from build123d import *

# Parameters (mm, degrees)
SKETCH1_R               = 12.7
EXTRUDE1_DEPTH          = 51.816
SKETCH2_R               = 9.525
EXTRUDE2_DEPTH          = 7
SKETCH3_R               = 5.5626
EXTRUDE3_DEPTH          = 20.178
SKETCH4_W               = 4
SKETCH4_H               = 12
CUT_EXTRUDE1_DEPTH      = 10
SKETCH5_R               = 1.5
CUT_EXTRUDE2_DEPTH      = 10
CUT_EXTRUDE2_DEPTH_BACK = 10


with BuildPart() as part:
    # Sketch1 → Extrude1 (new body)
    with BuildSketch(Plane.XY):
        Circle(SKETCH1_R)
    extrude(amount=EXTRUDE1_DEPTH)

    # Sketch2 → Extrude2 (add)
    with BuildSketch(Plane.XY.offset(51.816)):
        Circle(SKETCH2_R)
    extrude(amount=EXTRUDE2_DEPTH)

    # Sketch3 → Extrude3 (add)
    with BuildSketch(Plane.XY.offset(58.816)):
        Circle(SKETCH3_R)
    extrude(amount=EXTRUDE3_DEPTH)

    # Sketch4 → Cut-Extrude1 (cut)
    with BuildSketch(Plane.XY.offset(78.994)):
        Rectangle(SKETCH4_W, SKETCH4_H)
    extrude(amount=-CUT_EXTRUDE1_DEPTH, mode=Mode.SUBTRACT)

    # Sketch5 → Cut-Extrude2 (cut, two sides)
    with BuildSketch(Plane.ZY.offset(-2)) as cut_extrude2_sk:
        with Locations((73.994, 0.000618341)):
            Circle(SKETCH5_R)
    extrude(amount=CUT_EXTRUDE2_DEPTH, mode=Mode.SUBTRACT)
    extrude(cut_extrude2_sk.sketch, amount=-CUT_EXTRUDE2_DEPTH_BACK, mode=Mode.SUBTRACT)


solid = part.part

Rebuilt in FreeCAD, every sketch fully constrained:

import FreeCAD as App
import Part
import Sketcher
from FreeCAD import Vector
Q = App.Units.Quantity


def add_polygon(sketch, points):
    """Adds a closed chain of lines whose ends are joined by coincident constraints."""
    first, n = sketch.GeometryCount, len(points)
    for a, b in zip(points, points[1:] + points[:1]):
        sketch.addGeometry(Part.LineSegment(App.Vector(*a, 0), App.Vector(*b, 0)), False)
    for i in range(n):
        sketch.addConstraint(Sketcher.Constraint("Coincident", first + i, 2, first + (i + 1) % n, 1))

doc = App.newDocument("Part")
body = doc.addObject("PartDesign::Body", "Body")

# Sketch on XY plane
sketch1 = body.newObject("Sketcher::SketchObject", "Sketch")
sketch1.AttachmentSupport = (doc.getObject("XY_Plane"), [""])
sketch1.MapMode = "FlatFace"
sketch1.addGeometry(Part.Circle(Vector(0, 0, 0), Vector(0, 0, 1), 13), False)
sketch1.addConstraint(Sketcher.Constraint("Coincident", 0, 3, -1, 1))
sketch1.addConstraint(Sketcher.Constraint("Diameter", 0, Q("25.4 mm")))
pad1 = body.newObject("PartDesign::Pad", "Pad")
pad1.Profile = sketch1
pad1.Length = 51.816

# Sketch on XY plane
sketch2 = body.newObject("Sketcher::SketchObject", "Sketch001")
sketch2.AttachmentSupport = (doc.getObject("XY_Plane"), [""])
sketch2.MapMode = "FlatFace"
sketch2.AttachmentOffset = App.Placement(Vector(0, 0, 51.816), App.Rotation())
sketch2.addGeometry(Part.Circle(Vector(0, 0, 0), Vector(0, 0, 1), 10), False)
sketch2.addConstraint(Sketcher.Constraint("Coincident", 0, 3, -1, 1))
sketch2.addConstraint(Sketcher.Constraint("Diameter", 0, Q("19.05 mm")))
pad2 = body.newObject("PartDesign::Pad", "Pad001")
pad2.Profile = sketch2
pad2.Length = 7

# Sketch on XY plane
sketch3 = body.newObject("Sketcher::SketchObject", "Sketch002")
sketch3.AttachmentSupport = (doc.getObject("XY_Plane"), [""])
sketch3.MapMode = "FlatFace"
sketch3.AttachmentOffset = App.Placement(Vector(0, 0, 58.816), App.Rotation())
sketch3.addGeometry(Part.Circle(Vector(0, 0, 0), Vector(0, 0, 1), 6), False)
sketch3.addConstraint(Sketcher.Constraint("Coincident", 0, 3, -1, 1))
sketch3.addConstraint(Sketcher.Constraint("Diameter", 0, Q("11.1252 mm")))
pad3 = body.newObject("PartDesign::Pad", "Pad002")
pad3.Profile = sketch3
pad3.Length = 20.178

# Sketch on XY plane
sketch4 = body.newObject("Sketcher::SketchObject", "Sketch003")
sketch4.AttachmentSupport = (doc.getObject("XY_Plane"), [""])
sketch4.MapMode = "FlatFace"
sketch4.AttachmentOffset = App.Placement(Vector(0, 0, 78.994), App.Rotation())
add_polygon(sketch4, [(-2, 6), (-2, -6), (2, -6), (2, 6)])  # lines 0-3
sketch4.addConstraint(Sketcher.Constraint("Vertical", 0))
sketch4.addConstraint(Sketcher.Constraint("Horizontal", 1))
sketch4.addConstraint(Sketcher.Constraint("Vertical", 2))
sketch4.addConstraint(Sketcher.Constraint("Horizontal", 3))
sketch4.addConstraint(Sketcher.Constraint("Symmetric", 0, 2, 2, 2, -1, 1))
sketch4.addConstraint(Sketcher.Constraint("DistanceX", 1, 1, 1, 2, Q("4 mm")))
sketch4.addConstraint(Sketcher.Constraint("DistanceY", 0, 2, 0, 1, Q("12 mm")))
pocket1 = body.newObject("PartDesign::Pocket", "Pocket")
pocket1.Profile = sketch4
pocket1.Length = 10

# Sketch on YZ plane
sketch5 = body.newObject("Sketcher::SketchObject", "Sketch004")
sketch5.AttachmentSupport = (doc.getObject("YZ_Plane"), [""])
sketch5.MapMode = "FlatFace"
sketch5.AttachmentOffset = App.Placement(Vector(0, 0, 2), App.Rotation())
sketch5.addGeometry(Part.Circle(Vector(0, 74, 0), Vector(0, 0, 1), 1.5), False)
sketch5.addConstraint(Sketcher.Constraint("Diameter", 0, Q("3 mm")))
sketch5.addConstraint(Sketcher.Constraint("DistanceY", -1, 1, 0, 3, Q("73.994 mm")))
sketch5.addConstraint(Sketcher.Constraint("DistanceX", -1, 1, 0, 3, Q("0.000618 mm")))
pocket2 = body.newObject("PartDesign::Pocket", "Pocket001")
pocket2.Profile = sketch5
pocket2.Type = "ThroughAll"
pocket2.Midplane = True

doc.recompute()
